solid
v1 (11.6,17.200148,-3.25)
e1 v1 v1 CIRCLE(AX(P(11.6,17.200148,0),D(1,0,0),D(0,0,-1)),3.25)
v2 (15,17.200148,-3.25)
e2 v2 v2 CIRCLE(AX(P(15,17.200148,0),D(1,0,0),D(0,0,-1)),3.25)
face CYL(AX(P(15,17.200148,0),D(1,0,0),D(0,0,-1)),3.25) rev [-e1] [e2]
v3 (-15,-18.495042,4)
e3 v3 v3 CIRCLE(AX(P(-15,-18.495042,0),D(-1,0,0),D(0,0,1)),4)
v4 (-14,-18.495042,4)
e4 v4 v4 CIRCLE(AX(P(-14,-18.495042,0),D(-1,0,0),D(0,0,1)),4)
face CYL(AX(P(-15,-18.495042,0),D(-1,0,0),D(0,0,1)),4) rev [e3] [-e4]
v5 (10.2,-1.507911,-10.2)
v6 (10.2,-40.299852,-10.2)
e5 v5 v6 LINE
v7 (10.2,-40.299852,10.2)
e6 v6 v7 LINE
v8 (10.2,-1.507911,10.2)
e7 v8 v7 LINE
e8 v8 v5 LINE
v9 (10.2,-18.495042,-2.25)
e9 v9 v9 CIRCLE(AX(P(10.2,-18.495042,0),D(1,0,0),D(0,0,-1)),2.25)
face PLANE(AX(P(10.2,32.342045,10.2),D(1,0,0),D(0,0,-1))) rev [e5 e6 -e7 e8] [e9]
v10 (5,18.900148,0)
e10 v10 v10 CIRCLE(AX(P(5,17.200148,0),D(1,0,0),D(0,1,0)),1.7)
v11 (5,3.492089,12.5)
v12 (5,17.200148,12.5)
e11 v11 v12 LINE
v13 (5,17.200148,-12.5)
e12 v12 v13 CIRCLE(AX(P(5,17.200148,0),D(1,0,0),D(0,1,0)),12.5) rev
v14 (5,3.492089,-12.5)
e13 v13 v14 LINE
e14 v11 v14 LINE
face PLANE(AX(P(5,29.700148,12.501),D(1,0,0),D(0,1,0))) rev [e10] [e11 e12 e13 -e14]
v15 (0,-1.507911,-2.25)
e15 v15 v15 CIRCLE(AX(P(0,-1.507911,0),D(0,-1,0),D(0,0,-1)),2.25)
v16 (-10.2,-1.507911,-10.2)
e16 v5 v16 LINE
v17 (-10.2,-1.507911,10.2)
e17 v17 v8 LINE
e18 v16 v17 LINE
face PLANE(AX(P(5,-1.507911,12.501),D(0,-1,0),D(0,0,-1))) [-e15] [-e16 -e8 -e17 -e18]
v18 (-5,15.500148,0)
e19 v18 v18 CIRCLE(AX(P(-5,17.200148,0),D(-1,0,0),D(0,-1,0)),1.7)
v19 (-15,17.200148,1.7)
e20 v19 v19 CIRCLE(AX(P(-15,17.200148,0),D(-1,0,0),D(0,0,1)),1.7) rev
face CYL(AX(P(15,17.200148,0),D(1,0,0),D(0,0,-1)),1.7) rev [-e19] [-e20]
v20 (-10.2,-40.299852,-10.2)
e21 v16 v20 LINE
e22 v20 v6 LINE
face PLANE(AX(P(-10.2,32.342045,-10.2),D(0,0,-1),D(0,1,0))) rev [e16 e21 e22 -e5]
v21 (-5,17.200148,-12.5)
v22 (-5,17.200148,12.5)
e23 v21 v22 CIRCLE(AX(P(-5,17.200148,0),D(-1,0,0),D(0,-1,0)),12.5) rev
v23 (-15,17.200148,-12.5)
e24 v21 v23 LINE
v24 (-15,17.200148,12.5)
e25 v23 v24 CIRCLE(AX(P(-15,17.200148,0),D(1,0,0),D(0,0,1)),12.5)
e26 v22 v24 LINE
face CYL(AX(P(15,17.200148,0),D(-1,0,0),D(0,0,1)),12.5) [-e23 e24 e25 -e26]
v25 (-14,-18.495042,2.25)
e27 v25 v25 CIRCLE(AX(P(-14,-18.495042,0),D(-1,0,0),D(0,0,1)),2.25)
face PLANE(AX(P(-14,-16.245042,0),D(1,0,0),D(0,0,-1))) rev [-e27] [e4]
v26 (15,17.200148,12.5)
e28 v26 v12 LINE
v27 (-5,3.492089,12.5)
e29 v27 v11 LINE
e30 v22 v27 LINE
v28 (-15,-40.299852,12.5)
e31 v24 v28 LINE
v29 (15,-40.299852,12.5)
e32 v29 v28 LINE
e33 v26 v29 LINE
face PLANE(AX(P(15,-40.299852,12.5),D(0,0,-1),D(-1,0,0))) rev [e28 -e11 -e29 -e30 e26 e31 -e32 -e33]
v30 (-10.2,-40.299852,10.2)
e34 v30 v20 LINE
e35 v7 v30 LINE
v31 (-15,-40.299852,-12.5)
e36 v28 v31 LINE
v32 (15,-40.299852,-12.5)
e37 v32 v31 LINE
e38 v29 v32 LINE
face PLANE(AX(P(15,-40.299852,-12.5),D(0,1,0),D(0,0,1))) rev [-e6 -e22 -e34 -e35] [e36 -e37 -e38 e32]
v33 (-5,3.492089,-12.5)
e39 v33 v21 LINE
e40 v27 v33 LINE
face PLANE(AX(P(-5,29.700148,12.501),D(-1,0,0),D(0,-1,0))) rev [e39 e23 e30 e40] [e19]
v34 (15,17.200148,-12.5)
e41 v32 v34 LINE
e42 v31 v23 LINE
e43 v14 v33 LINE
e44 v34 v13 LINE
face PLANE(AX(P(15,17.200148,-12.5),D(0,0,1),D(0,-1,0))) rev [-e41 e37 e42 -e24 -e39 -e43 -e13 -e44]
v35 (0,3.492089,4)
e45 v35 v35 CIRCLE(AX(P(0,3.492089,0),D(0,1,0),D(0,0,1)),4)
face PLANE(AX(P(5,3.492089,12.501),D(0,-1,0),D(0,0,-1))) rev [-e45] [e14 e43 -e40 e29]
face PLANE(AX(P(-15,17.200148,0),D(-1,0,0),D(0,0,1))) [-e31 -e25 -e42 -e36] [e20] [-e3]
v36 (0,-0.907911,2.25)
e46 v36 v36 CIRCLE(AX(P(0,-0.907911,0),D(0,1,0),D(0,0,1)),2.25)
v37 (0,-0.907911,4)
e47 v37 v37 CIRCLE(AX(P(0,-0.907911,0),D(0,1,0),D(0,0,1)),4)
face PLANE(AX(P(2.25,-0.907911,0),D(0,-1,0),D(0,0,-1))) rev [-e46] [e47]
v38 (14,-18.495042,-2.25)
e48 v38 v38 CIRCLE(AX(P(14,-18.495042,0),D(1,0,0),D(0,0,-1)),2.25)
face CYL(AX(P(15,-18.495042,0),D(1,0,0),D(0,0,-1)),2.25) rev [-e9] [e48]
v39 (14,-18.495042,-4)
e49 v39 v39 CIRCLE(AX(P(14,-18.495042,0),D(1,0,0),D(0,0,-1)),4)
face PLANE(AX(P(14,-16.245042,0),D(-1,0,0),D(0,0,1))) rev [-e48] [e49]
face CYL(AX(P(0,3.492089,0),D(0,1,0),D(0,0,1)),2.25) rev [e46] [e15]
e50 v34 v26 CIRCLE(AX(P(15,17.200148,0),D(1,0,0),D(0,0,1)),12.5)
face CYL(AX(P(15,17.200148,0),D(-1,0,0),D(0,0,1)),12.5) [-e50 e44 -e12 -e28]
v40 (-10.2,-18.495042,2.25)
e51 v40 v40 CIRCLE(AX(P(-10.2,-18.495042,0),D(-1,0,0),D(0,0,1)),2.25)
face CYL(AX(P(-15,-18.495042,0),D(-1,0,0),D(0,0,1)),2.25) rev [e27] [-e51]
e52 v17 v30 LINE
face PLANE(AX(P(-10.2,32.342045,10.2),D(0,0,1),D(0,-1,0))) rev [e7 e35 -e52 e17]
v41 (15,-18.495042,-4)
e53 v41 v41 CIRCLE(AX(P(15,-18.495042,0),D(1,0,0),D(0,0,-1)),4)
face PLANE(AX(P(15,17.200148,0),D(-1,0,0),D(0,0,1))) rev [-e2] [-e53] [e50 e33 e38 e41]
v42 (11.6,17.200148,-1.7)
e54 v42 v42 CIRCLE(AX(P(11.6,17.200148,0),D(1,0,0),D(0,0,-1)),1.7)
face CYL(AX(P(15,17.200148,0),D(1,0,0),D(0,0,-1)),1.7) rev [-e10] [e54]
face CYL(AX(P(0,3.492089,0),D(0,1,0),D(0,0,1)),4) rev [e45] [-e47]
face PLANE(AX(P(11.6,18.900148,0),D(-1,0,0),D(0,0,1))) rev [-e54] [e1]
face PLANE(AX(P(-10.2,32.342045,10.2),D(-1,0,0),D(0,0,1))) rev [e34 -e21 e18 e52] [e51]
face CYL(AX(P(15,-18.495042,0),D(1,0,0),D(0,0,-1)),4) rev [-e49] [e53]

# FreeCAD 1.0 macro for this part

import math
import FreeCAD as App
import Part
import Sketcher


def add_polygon(sketch, points):
    """Adds a closed chain of lines whose ends are joined by coincident constraints."""
    first, n = sketch.GeometryCount, len(points)
    for a, b in zip(points, points[1:] + points[:1]):
        sketch.addGeometry(Part.LineSegment(App.Vector(*a, 0), App.Vector(*b, 0)), False)
    for i in range(n):
        sketch.addConstraint(Sketcher.Constraint("Coincident", first + i, 2, first + (i + 1) % n, 1))

doc = App.newDocument("Part")
body = doc.addObject("PartDesign::Body", "Body")

# Sketch on YZ plane
sketch1 = body.newObject("Sketcher::SketchObject", "Sketch")
sketch1.AttachmentSupport = (doc.getObject("YZ_Plane"), [""])
sketch1.MapMode = "FlatFace"
sketch1.addGeometry([
    Part.LineSegment(App.Vector(17.200148, 12.5, 0), App.Vector(-40.299852, 12.5, 0)),
    Part.LineSegment(App.Vector(-40.299852, 12.5, 0), App.Vector(-40.299852, -12.5, 0)),
    Part.LineSegment(App.Vector(-40.299852, -12.5, 0), App.Vector(17.200148, -12.5, 0)),
    Part.ArcOfCircle(Part.Circle(App.Vector(17.200148, 0, 0), App.Vector(0, 0, 1), 12.5), math.radians(-90), math.radians(90)),
], False)
sketch1.addConstraint([
    Sketcher.Constraint("Coincident", 0, 2, 1, 1),
    Sketcher.Constraint("Coincident", 1, 2, 2, 1),
    Sketcher.Constraint("Tangent", 2, 2, 3, 1),
    Sketcher.Constraint("Tangent", 3, 2, 0, 1),
    Sketcher.Constraint("Horizontal", 0),
    Sketcher.Constraint("Vertical", 1),
    Sketcher.Constraint("Horizontal", 2),
    Sketcher.Constraint("PointOnObject", 3, 3, -1),
    Sketcher.Constraint("Radius", 3, 12.5),
    Sketcher.Constraint("DistanceX", 0, 2, 0, 1, 57.5),
    Sketcher.Constraint("DistanceX", -1, 1, 3, 3, 17.200148),
])
pad1 = body.newObject("PartDesign::Pad", "Pad")
pad1.Profile = sketch1
pad1.Length = 30
pad1.Midplane = True

# Sketch on YZ plane
sketch2 = body.newObject("Sketcher::SketchObject", "Sketch001")
sketch2.AttachmentSupport = (doc.getObject("YZ_Plane"), [""])
sketch2.MapMode = "FlatFace"
sketch2.AttachmentOffset = App.Placement(App.Vector(0, 0, 15), App.Rotation())
sketch2.addGeometry(Part.Circle(App.Vector(17.200148, 0, 0), App.Vector(0, 0, 1), 1.7), False)
sketch2.addConstraint([
    Sketcher.Constraint("PointOnObject", 0, 3, -1),
    Sketcher.Constraint("Diameter", 0, 3.4),
    Sketcher.Constraint("DistanceX", -1, 1, 0, 3, 17.200148),
])
doc.recompute()
hole = body.newObject("PartDesign::Hole", "Hole")
hole.Profile = sketch2
hole.ThreadType = "None"
hole.Diameter = 3.4
hole.DepthType = "ThroughAll"
hole.HoleCutType = "Counterbore"
hole.HoleCutDiameter = 6.5
hole.HoleCutDepth = 3.4

# Sketch on XY plane
sketch3 = body.newObject("Sketcher::SketchObject", "Sketch002")
sketch3.AttachmentSupport = (doc.getObject("XY_Plane"), [""])
sketch3.MapMode = "FlatFace"
sketch3.AttachmentOffset = App.Placement(App.Vector(0, 0, -12.5), App.Rotation())
add_polygon(sketch3, [(5, 29.700148), (5, 3.492089), (-5, 3.492089), (-5, 29.700148)])  # lines 0-3
sketch3.addConstraint([
    Sketcher.Constraint("Vertical", 0),
    Sketcher.Constraint("Horizontal", 1),
    Sketcher.Constraint("Vertical", 2),
    Sketcher.Constraint("Horizontal", 3),
    Sketcher.Constraint("DistanceX", 1, 2, 1, 1, 10.0),
    Sketcher.Constraint("DistanceX", -1, 1, 0, 2, 5.0),
    Sketcher.Constraint("DistanceY", 0, 2, 0, 1, 26.208059),
    Sketcher.Constraint("DistanceY", -1, 1, 0, 2, 3.492089),
])
pocket1 = body.newObject("PartDesign::Pocket", "Pocket")
pocket1.Profile = sketch3
pocket1.Type = "UpToFirst"
pocket1.Reversed = True

# Sketch on XZ plane
sketch4 = body.newObject("Sketcher::SketchObject", "Sketch003")
sketch4.AttachmentSupport = (doc.getObject("XZ_Plane"), [""])
sketch4.MapMode = "FlatFace"
sketch4.AttachmentOffset = App.Placement(App.Vector(0, 0, 40.299852), App.Rotation())
add_polygon(sketch4, [(-10.2, 10.2), (-10.2, -10.2), (10.2, -10.2), (10.2, 10.2)])  # lines 0-3
sketch4.addConstraint([
    Sketcher.Constraint("Vertical", 0),
    Sketcher.Constraint("Horizontal", 1),
    Sketcher.Constraint("Vertical", 2),
    Sketcher.Constraint("Horizontal", 3),
    Sketcher.Constraint("Symmetric", 0, 2, 2, 2, -1, 1),
    Sketcher.Constraint("Equal", 3, 0),
    Sketcher.Constraint("DistanceX", 1, 1, 1, 2, 20.4),
])
pocket2 = body.newObject("PartDesign::Pocket", "Pocket001")
pocket2.Profile = sketch4
pocket2.Length = 38.791941

# Sketch on YZ plane
sketch5 = body.newObject("Sketcher::SketchObject", "Sketch004")
sketch5.AttachmentSupport = (doc.getObject("YZ_Plane"), [""])
sketch5.MapMode = "FlatFace"
sketch5.AttachmentOffset = App.Placement(App.Vector(0, 0, -15), App.Rotation())
sketch5.addGeometry(Part.Circle(App.Vector(-18.495042, 0, 0), App.Vector(0, 0, 1), 2.25), False)
sketch5.addConstraint([
    Sketcher.Constraint("PointOnObject", 0, 3, -1),
    Sketcher.Constraint("Diameter", 0, 4.5),
    Sketcher.Constraint("DistanceX", 0, 3, -1, 1, 18.495042),
])
doc.recompute()
hole2 = body.newObject("PartDesign::Hole", "Hole001")
hole2.Profile = sketch5
hole2.ThreadType = "None"
hole2.Diameter = 4.5
hole2.DepthType = "Dimension"
hole2.Depth = 4.8
hole2.DrillPoint = "Flat"
hole2.HoleCutType = "Counterbore"
hole2.HoleCutDiameter = 8
hole2.HoleCutDepth = 1
hole2.Reversed = True

# Sketch on XZ plane
sketch6 = body.newObject("Sketcher::SketchObject", "Sketch005")
sketch6.AttachmentSupport = (doc.getObject("XZ_Plane"), [""])
sketch6.MapMode = "FlatFace"
sketch6.AttachmentOffset = App.Placement(App.Vector(0, 0, -3.492089), App.Rotation())
sketch6.addGeometry(Part.Circle(App.Vector(0, 0, 0), App.Vector(0, 0, 1), 2.25), False)
sketch6.addConstraint([
    Sketcher.Constraint("Coincident", 0, 3, -1, 1),
    Sketcher.Constraint("Diameter", 0, 4.5),
])
doc.recompute()
hole3 = body.newObject("PartDesign::Hole", "Hole002")
hole3.Profile = sketch6
hole3.ThreadType = "None"
hole3.Diameter = 4.5
hole3.DepthType = "ThroughAll"
hole3.HoleCutType = "Counterbore"
hole3.HoleCutDiameter = 8
hole3.HoleCutDepth = 4.4
hole3.Reversed = True
doc.recompute()

mirrored = body.newObject("PartDesign::Mirrored", "Mirrored")
mirrored.Originals = [hole2]
mirrored.MirrorPlane = (doc.getObject("YZ_Plane"), [""])
body.Tip = mirrored

doc.recompute()
